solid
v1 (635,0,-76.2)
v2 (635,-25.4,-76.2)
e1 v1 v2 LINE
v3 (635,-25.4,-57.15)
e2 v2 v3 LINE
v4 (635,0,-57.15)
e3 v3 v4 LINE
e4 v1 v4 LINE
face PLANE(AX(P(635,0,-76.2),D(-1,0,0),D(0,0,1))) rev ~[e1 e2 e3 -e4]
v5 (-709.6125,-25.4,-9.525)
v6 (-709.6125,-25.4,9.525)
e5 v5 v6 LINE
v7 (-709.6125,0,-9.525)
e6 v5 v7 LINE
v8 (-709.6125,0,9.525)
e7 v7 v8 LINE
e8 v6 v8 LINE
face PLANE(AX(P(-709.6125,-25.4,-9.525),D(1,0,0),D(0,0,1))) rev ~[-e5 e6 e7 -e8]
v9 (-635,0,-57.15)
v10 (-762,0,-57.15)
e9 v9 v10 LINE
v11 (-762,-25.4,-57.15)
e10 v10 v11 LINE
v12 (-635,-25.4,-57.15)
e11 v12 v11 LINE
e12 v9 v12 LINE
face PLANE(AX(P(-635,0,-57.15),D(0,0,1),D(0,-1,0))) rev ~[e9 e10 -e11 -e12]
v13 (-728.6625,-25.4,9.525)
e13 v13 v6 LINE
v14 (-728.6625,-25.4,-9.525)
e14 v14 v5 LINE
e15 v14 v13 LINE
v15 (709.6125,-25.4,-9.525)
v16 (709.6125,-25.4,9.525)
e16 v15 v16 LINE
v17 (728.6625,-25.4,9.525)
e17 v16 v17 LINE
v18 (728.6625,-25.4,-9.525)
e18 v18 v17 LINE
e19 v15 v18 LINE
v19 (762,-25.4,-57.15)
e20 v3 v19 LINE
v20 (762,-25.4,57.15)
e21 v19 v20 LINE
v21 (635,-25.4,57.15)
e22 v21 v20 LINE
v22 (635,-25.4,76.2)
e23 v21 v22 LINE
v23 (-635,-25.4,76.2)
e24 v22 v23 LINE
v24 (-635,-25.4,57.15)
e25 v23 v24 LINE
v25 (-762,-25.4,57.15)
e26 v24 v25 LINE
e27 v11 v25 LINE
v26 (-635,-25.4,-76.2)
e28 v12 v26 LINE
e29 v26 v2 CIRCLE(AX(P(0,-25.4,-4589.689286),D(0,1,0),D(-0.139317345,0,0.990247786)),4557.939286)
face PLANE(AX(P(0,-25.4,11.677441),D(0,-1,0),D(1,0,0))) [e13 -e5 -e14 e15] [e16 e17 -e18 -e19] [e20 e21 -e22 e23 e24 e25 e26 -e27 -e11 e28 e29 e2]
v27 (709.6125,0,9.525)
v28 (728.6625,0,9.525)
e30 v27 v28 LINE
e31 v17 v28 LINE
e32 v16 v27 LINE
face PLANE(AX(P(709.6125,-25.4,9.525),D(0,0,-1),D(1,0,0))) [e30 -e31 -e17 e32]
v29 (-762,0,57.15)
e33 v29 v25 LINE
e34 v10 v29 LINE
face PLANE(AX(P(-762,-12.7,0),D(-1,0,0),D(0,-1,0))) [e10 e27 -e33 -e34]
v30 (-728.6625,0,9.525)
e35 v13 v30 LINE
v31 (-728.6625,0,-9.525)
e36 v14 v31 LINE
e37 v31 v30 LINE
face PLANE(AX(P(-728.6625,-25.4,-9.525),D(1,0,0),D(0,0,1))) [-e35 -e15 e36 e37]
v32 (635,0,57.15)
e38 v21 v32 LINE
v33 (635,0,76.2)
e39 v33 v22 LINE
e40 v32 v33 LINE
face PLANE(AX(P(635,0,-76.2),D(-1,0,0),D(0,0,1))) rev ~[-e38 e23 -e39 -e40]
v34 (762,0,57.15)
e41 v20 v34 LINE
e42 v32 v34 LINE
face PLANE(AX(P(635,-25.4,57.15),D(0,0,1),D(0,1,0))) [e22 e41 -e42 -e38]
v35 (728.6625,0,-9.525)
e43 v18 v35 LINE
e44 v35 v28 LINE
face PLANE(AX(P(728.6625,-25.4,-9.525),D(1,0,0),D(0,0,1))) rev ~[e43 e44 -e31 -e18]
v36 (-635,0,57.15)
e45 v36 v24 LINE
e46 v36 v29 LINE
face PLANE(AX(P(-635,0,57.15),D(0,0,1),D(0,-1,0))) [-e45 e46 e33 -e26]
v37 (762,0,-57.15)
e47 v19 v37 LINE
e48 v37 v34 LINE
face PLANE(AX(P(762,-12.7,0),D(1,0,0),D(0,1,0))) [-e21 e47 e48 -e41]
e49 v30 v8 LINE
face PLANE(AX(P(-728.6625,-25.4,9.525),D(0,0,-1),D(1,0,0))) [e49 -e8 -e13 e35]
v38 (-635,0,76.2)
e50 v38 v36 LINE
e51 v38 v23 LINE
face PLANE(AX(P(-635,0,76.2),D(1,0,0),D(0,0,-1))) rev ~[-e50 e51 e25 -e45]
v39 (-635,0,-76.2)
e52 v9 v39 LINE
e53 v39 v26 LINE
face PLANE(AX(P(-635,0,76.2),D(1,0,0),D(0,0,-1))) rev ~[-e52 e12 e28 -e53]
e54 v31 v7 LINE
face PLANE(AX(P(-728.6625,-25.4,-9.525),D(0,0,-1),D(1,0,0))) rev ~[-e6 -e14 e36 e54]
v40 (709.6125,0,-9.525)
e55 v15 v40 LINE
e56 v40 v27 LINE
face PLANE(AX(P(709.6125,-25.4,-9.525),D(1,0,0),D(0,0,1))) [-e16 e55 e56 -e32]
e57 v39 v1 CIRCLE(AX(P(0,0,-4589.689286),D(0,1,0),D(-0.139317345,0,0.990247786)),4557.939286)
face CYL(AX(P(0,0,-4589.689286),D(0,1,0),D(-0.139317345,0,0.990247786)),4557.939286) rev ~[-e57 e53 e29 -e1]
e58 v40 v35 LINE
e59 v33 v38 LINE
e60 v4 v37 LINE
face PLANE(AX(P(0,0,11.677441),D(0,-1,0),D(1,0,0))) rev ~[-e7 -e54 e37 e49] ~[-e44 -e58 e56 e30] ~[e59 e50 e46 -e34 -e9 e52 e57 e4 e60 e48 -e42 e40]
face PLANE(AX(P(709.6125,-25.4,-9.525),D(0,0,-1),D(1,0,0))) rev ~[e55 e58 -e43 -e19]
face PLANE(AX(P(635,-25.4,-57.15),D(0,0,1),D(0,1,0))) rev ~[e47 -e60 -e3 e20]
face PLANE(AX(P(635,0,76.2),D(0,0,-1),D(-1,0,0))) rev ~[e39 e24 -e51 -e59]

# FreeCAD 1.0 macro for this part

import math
import FreeCAD as App
import Part
import Sketcher
Q = App.Units.Quantity


def add_polygon(sketch, points):
    """Adds a closed chain of lines whose ends are joined by coincident constraints."""
    first, n = sketch.GeometryCount, len(points)
    for a, b in zip(points, points[1:] + points[:1]):
        sketch.addGeometry(Part.LineSegment(App.Vector(*a, 0), App.Vector(*b, 0)), False)
    for i in range(n):
        sketch.addConstraint(Sketcher.Constraint("Coincident", first + i, 2, first + (i + 1) % n, 1))

doc = App.newDocument("Part")
body = doc.addObject("PartDesign::Body", "Body")

sketch1 = body.newObject("Sketcher::SketchObject", "Sketch")
sketch1.AttachmentSupport = (doc.getObject("XZ_Plane"), [""])
sketch1.MapMode = "FlatFace"
sketch1.addGeometry(Part.LineSegment(App.Vector(635, -76, 0), App.Vector(635, 76, 0)), False)
sketch1.addGeometry(Part.LineSegment(App.Vector(635, 76, 0), App.Vector(-635, 76, 0)), False)
sketch1.addGeometry(Part.LineSegment(App.Vector(-635, 76, 0), App.Vector(-635, -76, 0)), False)
sketch1.addGeometry(Part.ArcOfCircle(Part.Circle(App.Vector(0, -4590, 0), App.Vector(0, 0, 1), 4558), math.radians(81.99), math.radians(98.01)), False)
sketch1.addConstraint(Sketcher.Constraint("Coincident", 0, 2, 1, 1))
sketch1.addConstraint(Sketcher.Constraint("Coincident", 1, 2, 2, 1))
sketch1.addConstraint(Sketcher.Constraint("Coincident", 2, 2, 3, 2))
sketch1.addConstraint(Sketcher.Constraint("Coincident", 3, 1, 0, 1))
sketch1.addConstraint(Sketcher.Constraint("Vertical", 0))
sketch1.addConstraint(Sketcher.Constraint("Horizontal", 1))
sketch1.addConstraint(Sketcher.Constraint("Vertical", 2))
sketch1.addConstraint(Sketcher.Constraint("Symmetric", 0, 2, 2, 2, -1, 1))
sketch1.addConstraint(Sketcher.Constraint("PointOnObject", 3, 3, -2))
sketch1.addConstraint(Sketcher.Constraint("DistanceX", 1, 2, 1, 1, Q("50 in")))
sketch1.addConstraint(Sketcher.Constraint("DistanceY", 0, 1, 0, 2, Q("6 in")))
sketch1.addConstraint(Sketcher.Constraint("Radius", 3, Q("4557.939286 mm")))
pad1 = body.newObject("PartDesign::Pad", "Pad")
pad1.Profile = sketch1
pad1.Length = Q("1 in")

sketch2 = body.newObject("Sketcher::SketchObject", "Sketch001")
sketch2.AttachmentSupport = (doc.getObject("YZ_Plane"), [""])
sketch2.MapMode = "FlatFace"
sketch2.AttachmentOffset = App.Placement(App.Vector(0, 0, -25 * 25.4), App.Rotation())
add_polygon(sketch2, [(0, 57), (0, -57), (-25, -57), (-25, 57)])
sketch2.addConstraint(Sketcher.Constraint("Vertical", 0))
sketch2.addConstraint(Sketcher.Constraint("Horizontal", 1))
sketch2.addConstraint(Sketcher.Constraint("Vertical", 2))
sketch2.addConstraint(Sketcher.Constraint("Horizontal", 3))
sketch2.addConstraint(Sketcher.Constraint("Symmetric", 0, 2, 3, 2, -1, 1))
sketch2.addConstraint(Sketcher.Constraint("DistanceX", 1, 2, 1, 1, Q("1 in")))
sketch2.addConstraint(Sketcher.Constraint("DistanceY", 0, 2, 0, 1, Q("4.5 in")))
pad2 = body.newObject("PartDesign::Pad", "Pad001")
pad2.Profile = sketch2
pad2.Length = Q("5 in")
pad2.Reversed = True

sketch3 = body.newObject("Sketcher::SketchObject", "Sketch002")
sketch3.AttachmentSupport = (doc.getObject("YZ_Plane"), [""])
sketch3.MapMode = "FlatFace"
sketch3.AttachmentOffset = App.Placement(App.Vector(0, 0, 25 * 25.4), App.Rotation())
add_polygon(sketch3, [(-25, 57), (-25, -57), (0, -57), (0, 57)])
sketch3.addConstraint(Sketcher.Constraint("Vertical", 0))
sketch3.addConstraint(Sketcher.Constraint("Horizontal", 1))
sketch3.addConstraint(Sketcher.Constraint("Vertical", 2))
sketch3.addConstraint(Sketcher.Constraint("Horizontal", 3))
sketch3.addConstraint(Sketcher.Constraint("Symmetric", 1, 2, 2, 2, -1, 1))
sketch3.addConstraint(Sketcher.Constraint("DistanceX", 1, 1, 1, 2, Q("1 in")))
sketch3.addConstraint(Sketcher.Constraint("DistanceY", 0, 2, 0, 1, Q("4.5 in")))
pad3 = body.newObject("PartDesign::Pad", "Pad002")
pad3.Profile = sketch3
pad3.Length = Q("5 in")

sketch4 = body.newObject("Sketcher::SketchObject", "Sketch003")
sketch4.AttachmentSupport = (doc.getObject("XZ_Plane"), [""])
sketch4.MapMode = "FlatFace"
sketch4.AttachmentOffset = App.Placement(App.Vector(0, 0, 1 * 25.4), App.Rotation())
add_polygon(sketch4, [(-729, 10), (-729, -10), (-710, -10), (-710, 10)])
add_polygon(sketch4, [(710, 10), (710, -10), (729, -10), (729, 10)])
sketch4.addConstraint(Sketcher.Constraint("Vertical", 0))
sketch4.addConstraint(Sketcher.Constraint("Horizontal", 1))
sketch4.addConstraint(Sketcher.Constraint("Vertical", 2))
sketch4.addConstraint(Sketcher.Constraint("Horizontal", 3))
sketch4.addConstraint(Sketcher.Constraint("Vertical", 4))
sketch4.addConstraint(Sketcher.Constraint("Horizontal", 5))
sketch4.addConstraint(Sketcher.Constraint("Vertical", 6))
sketch4.addConstraint(Sketcher.Constraint("Horizontal", 7))
sketch4.addConstraint(Sketcher.Constraint("Symmetric", 2, 2, 4, 2, -1, 1))
sketch4.addConstraint(Sketcher.Constraint("Symmetric", 0, 2, 6, 2, -1, 1))
sketch4.addConstraint(Sketcher.Constraint("Horizontal", 1, 2, 4, 2))
sketch4.addConstraint(Sketcher.Constraint("Equal", 7, 0))
sketch4.addConstraint(Sketcher.Constraint("DistanceX", 1, 1, 1, 2, Q("0.75 in")))
sketch4.addConstraint(Sketcher.Constraint("DistanceX", 0, 2, -1, 1, Q("28.6875 in")))
pocket1 = body.newObject("PartDesign::Pocket", "Pocket")
pocket1.Profile = sketch4
pocket1.Type = "ThroughAll"

doc.recompute()
